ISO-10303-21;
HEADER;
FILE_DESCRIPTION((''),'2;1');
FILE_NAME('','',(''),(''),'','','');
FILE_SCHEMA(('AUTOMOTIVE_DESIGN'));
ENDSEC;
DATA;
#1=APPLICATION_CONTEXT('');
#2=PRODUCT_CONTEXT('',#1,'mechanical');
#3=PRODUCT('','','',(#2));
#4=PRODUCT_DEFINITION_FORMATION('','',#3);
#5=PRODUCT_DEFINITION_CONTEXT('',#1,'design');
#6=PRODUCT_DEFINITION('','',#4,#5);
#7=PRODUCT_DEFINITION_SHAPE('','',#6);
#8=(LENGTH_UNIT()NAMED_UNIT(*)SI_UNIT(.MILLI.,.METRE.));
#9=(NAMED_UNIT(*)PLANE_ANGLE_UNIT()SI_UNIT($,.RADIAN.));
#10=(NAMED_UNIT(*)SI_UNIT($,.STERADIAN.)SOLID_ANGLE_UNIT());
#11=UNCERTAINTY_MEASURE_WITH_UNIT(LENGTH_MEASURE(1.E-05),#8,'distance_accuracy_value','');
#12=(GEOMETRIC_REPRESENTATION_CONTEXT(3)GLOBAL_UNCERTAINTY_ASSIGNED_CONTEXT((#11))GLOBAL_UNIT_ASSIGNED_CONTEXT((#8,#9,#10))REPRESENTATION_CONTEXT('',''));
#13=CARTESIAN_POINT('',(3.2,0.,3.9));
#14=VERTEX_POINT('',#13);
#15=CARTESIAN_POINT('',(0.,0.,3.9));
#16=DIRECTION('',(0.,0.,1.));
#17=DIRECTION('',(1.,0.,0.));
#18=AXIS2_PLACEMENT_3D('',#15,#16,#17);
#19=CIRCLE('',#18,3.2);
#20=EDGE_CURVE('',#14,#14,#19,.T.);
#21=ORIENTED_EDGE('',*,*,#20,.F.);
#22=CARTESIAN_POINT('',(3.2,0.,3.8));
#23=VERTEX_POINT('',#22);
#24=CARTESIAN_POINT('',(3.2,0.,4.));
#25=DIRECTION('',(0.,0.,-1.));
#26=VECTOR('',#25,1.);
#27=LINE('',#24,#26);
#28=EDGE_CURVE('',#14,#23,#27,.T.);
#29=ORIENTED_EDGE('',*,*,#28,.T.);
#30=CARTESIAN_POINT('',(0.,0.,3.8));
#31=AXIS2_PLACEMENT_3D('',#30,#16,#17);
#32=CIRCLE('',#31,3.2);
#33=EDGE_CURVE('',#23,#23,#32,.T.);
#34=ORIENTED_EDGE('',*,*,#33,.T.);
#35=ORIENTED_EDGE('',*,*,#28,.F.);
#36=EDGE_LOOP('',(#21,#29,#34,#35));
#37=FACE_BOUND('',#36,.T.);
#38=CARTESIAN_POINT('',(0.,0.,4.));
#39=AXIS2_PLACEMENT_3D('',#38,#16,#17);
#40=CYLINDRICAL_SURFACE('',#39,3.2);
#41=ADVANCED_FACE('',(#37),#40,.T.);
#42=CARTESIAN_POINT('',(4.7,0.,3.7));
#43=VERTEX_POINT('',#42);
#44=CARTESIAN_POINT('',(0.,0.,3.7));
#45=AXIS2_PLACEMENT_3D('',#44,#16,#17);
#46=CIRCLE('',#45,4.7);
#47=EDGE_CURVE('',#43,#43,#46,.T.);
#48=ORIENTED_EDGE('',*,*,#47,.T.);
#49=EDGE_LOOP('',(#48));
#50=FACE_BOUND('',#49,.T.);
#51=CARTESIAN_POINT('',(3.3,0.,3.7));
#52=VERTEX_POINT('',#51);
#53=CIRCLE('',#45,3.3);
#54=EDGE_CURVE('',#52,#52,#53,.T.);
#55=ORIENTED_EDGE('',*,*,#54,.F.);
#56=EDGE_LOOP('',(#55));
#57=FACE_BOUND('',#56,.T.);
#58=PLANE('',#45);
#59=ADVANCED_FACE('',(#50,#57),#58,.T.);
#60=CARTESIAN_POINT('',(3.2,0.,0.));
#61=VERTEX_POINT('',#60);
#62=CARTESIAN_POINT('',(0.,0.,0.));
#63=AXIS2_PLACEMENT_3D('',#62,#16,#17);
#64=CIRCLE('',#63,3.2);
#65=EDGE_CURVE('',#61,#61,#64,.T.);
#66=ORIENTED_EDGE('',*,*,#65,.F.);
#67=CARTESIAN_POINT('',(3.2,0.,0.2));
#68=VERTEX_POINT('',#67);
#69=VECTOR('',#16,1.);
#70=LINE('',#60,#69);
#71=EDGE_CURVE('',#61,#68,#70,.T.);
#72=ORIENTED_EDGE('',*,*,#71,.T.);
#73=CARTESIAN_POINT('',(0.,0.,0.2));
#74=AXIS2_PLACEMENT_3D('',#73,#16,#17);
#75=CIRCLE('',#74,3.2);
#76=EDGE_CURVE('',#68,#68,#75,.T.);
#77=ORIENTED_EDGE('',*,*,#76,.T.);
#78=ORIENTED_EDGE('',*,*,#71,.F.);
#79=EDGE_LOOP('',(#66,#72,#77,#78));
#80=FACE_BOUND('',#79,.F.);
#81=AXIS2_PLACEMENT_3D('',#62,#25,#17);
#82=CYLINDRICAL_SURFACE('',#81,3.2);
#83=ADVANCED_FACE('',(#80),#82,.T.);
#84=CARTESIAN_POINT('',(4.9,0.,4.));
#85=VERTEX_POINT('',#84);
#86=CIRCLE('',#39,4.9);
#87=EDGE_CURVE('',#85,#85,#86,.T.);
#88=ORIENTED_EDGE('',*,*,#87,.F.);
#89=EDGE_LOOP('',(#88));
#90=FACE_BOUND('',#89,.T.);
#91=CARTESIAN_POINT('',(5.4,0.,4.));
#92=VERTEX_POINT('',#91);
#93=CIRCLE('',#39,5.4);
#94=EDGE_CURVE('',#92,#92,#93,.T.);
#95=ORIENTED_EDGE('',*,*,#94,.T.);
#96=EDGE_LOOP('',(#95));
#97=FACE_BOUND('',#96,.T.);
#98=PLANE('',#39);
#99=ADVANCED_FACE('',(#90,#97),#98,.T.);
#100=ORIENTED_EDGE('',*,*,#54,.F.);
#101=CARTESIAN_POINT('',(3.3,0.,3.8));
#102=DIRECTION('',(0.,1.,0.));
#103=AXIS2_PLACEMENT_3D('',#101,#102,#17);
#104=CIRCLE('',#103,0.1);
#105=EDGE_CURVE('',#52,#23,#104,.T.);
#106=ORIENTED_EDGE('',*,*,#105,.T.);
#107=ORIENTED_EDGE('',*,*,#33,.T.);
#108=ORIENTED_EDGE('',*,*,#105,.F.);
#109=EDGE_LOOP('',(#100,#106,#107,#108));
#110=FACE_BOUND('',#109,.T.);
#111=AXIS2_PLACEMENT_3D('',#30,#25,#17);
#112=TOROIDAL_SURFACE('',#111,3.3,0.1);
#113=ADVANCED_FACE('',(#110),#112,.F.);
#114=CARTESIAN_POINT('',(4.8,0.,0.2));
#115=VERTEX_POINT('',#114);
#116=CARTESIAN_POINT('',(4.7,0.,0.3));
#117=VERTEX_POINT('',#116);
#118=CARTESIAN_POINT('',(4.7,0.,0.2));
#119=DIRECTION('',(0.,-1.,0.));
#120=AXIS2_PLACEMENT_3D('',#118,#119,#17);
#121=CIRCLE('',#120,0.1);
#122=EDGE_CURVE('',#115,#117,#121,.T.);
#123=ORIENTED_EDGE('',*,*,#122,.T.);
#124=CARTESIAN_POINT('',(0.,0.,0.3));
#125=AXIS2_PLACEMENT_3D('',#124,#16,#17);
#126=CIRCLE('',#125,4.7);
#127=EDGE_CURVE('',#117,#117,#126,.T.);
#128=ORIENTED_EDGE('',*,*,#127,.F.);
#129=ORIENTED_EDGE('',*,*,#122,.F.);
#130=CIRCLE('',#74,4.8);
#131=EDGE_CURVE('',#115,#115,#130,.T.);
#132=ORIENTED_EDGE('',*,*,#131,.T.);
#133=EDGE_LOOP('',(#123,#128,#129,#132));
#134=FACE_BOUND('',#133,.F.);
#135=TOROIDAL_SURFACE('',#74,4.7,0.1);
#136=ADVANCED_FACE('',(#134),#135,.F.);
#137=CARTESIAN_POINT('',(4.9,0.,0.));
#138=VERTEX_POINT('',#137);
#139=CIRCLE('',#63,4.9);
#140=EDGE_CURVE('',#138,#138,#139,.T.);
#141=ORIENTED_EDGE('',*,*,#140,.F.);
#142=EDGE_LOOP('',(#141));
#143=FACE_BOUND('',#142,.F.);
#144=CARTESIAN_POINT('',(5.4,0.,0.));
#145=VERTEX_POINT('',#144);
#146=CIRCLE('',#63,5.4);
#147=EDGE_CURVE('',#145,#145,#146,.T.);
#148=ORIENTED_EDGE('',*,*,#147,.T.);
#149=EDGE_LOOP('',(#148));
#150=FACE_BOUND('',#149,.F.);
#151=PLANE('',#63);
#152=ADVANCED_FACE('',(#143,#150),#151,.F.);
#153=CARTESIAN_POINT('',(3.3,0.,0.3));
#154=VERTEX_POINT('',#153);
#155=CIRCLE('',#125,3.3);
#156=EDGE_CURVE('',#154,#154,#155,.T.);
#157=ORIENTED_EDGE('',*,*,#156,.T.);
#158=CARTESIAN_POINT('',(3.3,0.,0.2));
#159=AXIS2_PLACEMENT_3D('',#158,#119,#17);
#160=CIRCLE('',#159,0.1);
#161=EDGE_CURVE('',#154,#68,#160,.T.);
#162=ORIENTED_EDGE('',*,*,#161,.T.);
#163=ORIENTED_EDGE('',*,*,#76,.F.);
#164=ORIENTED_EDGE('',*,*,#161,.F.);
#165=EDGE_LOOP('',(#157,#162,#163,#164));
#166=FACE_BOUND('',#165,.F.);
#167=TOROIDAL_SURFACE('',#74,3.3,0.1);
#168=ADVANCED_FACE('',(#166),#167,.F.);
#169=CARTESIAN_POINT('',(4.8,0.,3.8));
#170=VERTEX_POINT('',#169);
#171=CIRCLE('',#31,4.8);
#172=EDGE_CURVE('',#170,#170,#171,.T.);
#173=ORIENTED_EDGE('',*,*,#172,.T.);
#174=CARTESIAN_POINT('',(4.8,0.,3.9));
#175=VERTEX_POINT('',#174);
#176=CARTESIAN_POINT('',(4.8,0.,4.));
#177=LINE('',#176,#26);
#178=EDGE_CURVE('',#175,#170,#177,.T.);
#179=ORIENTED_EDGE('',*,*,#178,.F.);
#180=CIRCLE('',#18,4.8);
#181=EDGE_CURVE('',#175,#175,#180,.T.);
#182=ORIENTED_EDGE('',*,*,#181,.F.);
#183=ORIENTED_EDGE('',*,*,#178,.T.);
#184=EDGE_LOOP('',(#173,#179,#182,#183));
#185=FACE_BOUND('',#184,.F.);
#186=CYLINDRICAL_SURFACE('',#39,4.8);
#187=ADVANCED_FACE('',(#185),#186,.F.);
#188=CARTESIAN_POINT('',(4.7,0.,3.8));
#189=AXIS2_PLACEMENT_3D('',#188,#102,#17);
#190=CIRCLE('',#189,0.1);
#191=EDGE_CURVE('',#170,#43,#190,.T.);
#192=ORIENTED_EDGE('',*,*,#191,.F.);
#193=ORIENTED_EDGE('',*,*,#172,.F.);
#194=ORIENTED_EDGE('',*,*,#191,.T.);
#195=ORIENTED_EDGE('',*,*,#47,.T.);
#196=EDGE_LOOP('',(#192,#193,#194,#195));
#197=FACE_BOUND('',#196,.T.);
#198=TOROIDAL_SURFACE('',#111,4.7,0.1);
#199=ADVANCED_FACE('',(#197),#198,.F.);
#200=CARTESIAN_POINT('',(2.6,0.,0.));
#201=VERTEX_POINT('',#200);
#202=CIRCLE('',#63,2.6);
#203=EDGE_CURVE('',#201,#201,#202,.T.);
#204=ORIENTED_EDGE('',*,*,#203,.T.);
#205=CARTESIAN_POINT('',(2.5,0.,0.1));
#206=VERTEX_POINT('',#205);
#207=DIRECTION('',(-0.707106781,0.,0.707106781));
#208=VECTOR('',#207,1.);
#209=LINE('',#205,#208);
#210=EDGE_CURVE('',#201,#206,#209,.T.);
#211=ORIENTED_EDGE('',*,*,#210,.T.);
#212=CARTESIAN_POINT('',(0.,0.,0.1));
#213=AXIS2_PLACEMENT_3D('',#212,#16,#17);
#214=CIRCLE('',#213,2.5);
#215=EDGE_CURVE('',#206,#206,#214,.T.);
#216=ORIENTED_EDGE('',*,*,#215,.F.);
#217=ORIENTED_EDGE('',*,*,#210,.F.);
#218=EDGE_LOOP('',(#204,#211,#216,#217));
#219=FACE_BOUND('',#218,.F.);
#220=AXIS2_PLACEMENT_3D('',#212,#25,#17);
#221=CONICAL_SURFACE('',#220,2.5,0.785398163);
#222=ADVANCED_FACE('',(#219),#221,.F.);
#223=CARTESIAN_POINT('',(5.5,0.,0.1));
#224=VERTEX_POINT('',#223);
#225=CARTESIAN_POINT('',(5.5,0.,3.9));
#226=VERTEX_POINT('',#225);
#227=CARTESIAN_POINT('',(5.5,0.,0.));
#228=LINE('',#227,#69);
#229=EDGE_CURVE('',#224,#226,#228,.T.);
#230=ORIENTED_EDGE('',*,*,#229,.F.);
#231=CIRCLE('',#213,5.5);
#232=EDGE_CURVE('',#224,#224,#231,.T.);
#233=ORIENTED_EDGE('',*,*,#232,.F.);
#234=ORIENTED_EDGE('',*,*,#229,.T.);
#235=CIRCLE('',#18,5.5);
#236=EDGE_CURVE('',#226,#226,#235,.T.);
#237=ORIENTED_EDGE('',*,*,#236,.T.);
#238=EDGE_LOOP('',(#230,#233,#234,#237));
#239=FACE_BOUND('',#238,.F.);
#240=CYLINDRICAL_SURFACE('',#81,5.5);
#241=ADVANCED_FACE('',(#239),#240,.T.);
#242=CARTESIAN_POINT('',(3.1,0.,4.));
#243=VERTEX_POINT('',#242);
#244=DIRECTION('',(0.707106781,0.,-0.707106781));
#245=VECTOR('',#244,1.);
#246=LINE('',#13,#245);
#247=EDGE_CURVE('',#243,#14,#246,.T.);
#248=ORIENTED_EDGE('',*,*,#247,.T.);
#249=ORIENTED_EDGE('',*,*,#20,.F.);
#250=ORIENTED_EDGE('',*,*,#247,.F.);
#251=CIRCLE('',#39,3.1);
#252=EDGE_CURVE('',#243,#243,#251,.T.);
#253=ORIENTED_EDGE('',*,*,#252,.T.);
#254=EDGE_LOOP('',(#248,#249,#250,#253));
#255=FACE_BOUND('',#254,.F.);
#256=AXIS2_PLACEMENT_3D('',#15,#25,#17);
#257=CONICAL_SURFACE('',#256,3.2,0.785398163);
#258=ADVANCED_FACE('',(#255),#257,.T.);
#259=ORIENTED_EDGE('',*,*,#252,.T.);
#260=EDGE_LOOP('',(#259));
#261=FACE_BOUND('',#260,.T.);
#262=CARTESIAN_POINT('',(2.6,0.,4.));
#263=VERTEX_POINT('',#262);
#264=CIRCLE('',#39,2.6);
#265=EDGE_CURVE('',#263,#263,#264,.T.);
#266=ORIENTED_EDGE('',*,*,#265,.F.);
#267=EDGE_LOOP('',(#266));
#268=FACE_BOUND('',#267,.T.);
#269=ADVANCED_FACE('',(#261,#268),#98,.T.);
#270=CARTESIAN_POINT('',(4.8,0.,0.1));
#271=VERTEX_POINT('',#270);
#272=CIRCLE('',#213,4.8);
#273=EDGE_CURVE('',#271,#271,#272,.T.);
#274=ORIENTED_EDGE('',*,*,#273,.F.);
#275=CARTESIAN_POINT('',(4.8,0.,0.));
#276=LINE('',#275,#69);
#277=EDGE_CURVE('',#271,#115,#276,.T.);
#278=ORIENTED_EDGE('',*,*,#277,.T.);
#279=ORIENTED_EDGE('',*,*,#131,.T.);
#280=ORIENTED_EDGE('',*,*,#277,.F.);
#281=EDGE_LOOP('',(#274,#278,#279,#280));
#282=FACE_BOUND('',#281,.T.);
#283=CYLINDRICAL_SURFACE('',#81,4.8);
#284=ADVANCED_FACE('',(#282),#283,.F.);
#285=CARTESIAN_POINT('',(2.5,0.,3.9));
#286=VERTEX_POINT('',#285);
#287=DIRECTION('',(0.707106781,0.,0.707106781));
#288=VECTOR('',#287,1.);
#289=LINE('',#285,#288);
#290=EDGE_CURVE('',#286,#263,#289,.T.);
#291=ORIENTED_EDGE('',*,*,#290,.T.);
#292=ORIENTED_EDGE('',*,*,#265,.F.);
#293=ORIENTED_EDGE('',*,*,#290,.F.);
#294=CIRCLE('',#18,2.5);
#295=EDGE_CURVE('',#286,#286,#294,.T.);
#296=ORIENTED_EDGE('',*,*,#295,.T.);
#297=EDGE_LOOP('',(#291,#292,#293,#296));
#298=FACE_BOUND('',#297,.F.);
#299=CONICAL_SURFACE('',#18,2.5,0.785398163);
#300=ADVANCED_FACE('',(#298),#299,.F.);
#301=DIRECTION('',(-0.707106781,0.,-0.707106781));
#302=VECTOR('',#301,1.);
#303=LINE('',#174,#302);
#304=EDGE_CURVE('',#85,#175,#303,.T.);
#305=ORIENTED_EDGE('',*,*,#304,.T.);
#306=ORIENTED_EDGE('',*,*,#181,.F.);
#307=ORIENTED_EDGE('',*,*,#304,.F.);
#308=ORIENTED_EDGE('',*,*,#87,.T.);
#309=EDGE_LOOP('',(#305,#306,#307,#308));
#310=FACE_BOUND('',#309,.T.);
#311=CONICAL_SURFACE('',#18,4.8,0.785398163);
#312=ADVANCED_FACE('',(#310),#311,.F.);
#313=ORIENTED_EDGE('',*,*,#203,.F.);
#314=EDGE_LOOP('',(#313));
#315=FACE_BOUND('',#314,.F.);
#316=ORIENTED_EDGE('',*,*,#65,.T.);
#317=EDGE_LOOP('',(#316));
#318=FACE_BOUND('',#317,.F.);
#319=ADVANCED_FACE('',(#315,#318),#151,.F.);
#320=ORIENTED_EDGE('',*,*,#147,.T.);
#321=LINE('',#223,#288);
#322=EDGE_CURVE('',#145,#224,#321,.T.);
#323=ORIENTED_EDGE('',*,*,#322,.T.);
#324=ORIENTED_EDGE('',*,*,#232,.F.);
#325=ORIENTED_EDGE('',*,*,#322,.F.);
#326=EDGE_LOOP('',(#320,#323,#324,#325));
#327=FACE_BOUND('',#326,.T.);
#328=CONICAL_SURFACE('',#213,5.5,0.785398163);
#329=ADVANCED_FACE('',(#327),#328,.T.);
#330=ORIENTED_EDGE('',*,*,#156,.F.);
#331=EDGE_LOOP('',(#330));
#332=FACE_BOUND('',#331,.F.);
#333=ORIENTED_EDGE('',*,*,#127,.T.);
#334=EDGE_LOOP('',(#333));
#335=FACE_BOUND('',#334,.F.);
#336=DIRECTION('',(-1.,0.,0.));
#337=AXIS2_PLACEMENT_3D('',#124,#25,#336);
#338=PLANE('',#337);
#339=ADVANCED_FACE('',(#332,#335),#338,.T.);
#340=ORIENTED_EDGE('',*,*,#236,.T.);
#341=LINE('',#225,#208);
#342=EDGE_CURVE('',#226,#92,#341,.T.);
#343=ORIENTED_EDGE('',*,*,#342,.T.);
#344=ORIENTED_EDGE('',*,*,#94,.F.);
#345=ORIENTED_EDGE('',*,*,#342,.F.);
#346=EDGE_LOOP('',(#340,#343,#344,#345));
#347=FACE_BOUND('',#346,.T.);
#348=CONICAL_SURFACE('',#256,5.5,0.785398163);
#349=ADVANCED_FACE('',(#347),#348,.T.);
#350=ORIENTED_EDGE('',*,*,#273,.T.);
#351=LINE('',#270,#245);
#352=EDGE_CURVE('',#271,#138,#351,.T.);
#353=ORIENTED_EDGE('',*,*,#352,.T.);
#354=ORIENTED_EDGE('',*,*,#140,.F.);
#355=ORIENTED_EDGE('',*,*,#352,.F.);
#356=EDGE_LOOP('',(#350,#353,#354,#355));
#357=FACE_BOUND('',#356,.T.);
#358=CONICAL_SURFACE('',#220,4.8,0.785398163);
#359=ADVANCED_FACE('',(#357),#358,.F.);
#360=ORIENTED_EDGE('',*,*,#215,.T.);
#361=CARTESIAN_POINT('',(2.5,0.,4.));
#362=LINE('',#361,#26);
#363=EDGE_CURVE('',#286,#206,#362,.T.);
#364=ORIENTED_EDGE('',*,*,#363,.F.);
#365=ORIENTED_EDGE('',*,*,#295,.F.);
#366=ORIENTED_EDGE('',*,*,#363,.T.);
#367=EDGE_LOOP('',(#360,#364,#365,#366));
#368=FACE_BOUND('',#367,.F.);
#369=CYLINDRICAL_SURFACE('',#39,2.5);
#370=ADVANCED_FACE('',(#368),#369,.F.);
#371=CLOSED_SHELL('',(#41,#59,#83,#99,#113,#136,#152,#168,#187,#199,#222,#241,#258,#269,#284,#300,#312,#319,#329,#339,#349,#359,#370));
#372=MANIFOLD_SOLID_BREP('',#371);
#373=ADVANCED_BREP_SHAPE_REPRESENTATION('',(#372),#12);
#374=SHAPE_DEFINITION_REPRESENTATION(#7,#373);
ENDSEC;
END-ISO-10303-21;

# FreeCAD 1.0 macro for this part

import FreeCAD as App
import Part
import Sketcher

V = App.Vector
Q = App.Units.Quantity


def edges_at(feature, points):
    """Names of the edges that pass closest to the given points."""
    edges = feature.Shape.Edges
    near = lambda p: min(range(len(edges)), key=lambda i: edges[i].distToShape(Part.Vertex(*p))[0])
    return sorted({f"Edge{near(p) + 1}" for p in points})

doc = App.newDocument("Part")
body = doc.addObject("PartDesign::Body", "Body")

# Sketch on XY plane
sketch1 = body.newObject("Sketcher::SketchObject", "Sketch")
sketch1.AttachmentSupport = (doc.getObject("XY_Plane"), [""])
sketch1.MapMode = "FlatFace"
sketch1.addGeometry(Part.Circle(V(0, 0, 0), V(0, 0, 1), 6), False)
sketch1.addConstraint(Sketcher.Constraint("Coincident", 0, 3, -1, 1))
sketch1.addConstraint(Sketcher.Constraint("Diameter", 0, Q("11 mm")))
pad1 = body.newObject("PartDesign::Pad", "Pad")
pad1.Profile = sketch1
pad1.Length = 4

# Sketch on XY plane
sketch2 = body.newObject("Sketcher::SketchObject", "Sketch001")
sketch2.AttachmentSupport = (doc.getObject("XY_Plane"), [""])
sketch2.MapMode = "FlatFace"
sketch2.AttachmentOffset = App.Placement(V(0, 0, 4), App.Rotation())
sketch2.addGeometry(Part.Circle(V(0, 0, 0), V(0, 0, 1), 2.5), False)
sketch2.addConstraint(Sketcher.Constraint("Coincident", 0, 3, -1, 1))
sketch2.addConstraint(Sketcher.Constraint("Diameter", 0, Q("5 mm")))
pocket1 = body.newObject("PartDesign::Pocket", "Pocket")
pocket1.Profile = sketch2
pocket1.Type = "ThroughAll"

# Sketch on XY plane
sketch3 = body.newObject("Sketcher::SketchObject", "Sketch002")
sketch3.AttachmentSupport = (doc.getObject("XY_Plane"), [""])
sketch3.MapMode = "FlatFace"
sketch3.AttachmentOffset = App.Placement(V(0, 0, 4), App.Rotation())
sketch3.addGeometry(Part.Circle(V(0, 0, 0), V(0, 0, 1), 4.8), False)
sketch3.addGeometry(Part.Circle(V(0, 0, 0), V(0, 0, 1), 3.2), False)
sketch3.addConstraint(Sketcher.Constraint("Coincident", 0, 3, -1, 1))
sketch3.addConstraint(Sketcher.Constraint("Coincident", 1, 3, -1, 1))
sketch3.addConstraint(Sketcher.Constraint("Diameter", 0, Q("9.6 mm")))
sketch3.addConstraint(Sketcher.Constraint("Diameter", 1, Q("6.4 mm")))
pocket2 = body.newObject("PartDesign::Pocket", "Pocket001")
pocket2.Profile = sketch3
pocket2.Length = 0.3
doc.recompute()

chamfer = body.newObject("PartDesign::Chamfer", "Chamfer")
chamfer.Base = (pocket2, edges_at(pocket2, [
    (-4.8, 0, 4),
    (-5.5, 0, 4),
    (-3.2, 0, 4),
    (-2.5, 0, 4),
]))
chamfer.Size = 0.1
doc.recompute()

fillet = body.newObject("PartDesign::Fillet", "Fillet")
fillet.Base = (chamfer, edges_at(chamfer, [(-4.8, 0, 3.7), (-3.2, 0, 3.7)]))
fillet.Radius = 0.1
doc.recompute()

datumplane = body.newObject("PartDesign::Plane", "DatumPlane")
datumplane.AttachmentSupport = (doc.getObject("XY_Plane"), [""])
datumplane.MapMode = "FlatFace"
datumplane.AttachmentOffset = App.Placement(V(0, 0, 2), App.Rotation())
mirrored = body.newObject("PartDesign::Mirrored", "Mirrored")
mirrored.Originals = [pocket2, fillet]
mirrored.MirrorPlane = (datumplane, [""])
body.Tip = mirrored
doc.recompute()

chamfer2 = body.newObject("PartDesign::Chamfer", "Chamfer001")
chamfer2.Base = (mirrored, edges_at(mirrored, [(-5.5, 0, 0), (-4.8, 0, 0), (-2.5, 0, 0)]))
chamfer2.Size = 0.1

doc.recompute()
